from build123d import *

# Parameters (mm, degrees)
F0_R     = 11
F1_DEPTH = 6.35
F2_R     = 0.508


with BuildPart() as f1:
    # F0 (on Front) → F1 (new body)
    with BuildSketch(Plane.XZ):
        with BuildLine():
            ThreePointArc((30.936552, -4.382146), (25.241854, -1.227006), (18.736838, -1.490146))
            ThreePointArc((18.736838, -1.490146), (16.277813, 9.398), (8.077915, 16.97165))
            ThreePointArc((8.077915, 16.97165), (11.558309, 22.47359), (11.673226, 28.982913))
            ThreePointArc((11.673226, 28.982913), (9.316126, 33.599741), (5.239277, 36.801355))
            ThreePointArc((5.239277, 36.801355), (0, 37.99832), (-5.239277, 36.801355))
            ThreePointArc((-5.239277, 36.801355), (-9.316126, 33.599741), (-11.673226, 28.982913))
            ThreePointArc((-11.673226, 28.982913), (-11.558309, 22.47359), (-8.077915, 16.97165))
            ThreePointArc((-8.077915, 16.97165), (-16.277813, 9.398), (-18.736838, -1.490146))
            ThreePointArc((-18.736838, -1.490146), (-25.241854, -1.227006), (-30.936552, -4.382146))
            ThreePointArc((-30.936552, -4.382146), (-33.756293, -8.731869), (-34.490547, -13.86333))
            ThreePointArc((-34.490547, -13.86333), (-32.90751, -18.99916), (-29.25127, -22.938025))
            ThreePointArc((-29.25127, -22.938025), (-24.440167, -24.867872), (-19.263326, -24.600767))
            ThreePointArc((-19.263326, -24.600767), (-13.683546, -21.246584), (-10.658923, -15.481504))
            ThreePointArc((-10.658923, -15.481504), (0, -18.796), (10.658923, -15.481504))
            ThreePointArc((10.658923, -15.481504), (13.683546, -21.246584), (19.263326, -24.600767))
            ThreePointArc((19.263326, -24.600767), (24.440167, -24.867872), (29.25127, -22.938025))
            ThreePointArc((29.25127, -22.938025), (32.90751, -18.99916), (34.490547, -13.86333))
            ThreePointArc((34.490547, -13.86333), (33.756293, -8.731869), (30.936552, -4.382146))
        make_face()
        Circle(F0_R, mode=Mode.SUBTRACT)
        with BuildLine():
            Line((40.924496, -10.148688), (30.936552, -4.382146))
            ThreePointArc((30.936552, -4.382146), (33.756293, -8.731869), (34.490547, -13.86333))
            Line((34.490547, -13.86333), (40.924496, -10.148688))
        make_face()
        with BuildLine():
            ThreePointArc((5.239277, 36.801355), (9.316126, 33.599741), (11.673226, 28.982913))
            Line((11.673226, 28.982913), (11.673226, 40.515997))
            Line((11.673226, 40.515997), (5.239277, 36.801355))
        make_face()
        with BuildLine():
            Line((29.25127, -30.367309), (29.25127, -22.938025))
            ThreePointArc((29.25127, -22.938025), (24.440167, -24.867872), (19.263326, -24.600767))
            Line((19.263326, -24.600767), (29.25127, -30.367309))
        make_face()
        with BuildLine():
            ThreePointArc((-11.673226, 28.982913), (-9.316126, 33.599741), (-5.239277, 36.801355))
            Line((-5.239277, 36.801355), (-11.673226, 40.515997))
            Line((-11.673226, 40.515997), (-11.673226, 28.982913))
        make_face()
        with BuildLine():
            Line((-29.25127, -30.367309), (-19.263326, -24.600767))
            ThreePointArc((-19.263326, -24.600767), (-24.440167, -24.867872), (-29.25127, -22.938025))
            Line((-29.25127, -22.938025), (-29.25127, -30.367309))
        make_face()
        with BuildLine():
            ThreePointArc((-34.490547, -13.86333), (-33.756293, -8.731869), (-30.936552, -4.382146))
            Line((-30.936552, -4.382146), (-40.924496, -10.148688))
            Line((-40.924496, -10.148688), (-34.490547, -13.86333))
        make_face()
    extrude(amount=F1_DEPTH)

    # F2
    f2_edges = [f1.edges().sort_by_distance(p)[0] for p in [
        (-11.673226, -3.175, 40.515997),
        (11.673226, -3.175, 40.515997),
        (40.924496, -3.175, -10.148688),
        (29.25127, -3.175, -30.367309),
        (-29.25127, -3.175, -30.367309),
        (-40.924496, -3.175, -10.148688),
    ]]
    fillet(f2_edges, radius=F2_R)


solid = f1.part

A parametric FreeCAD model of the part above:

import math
import FreeCAD as App
import Part
import Sketcher
from FreeCAD import Vector
Q = App.Units.Quantity


def edges_at(feature, points):
    """Names of the edges that pass closest to the given points."""
    edges = feature.Shape.Edges
    near = lambda p: min(range(len(edges)), key=lambda i: edges[i].distToShape(Part.Vertex(*p))[0])
    return sorted({f"Edge{near(p) + 1}" for p in points})

doc = App.newDocument("Part")
body = doc.addObject("PartDesign::Body", "Body")

# Sketch on XZ plane
sketch1 = body.newObject("Sketcher::SketchObject", "Sketch")
sketch1.AttachmentSupport = (doc.getObject("XZ_Plane"), [""])
sketch1.MapMode = "FlatFace"
sketch1.addGeometry([
    Part.ArcOfCircle(Part.Circle(Vector(22, -13, 0), Vector(0, 0, 1), 12), math.radians(45), math.radians(108)),  # 0
    Part.ArcOfCircle(Part.Circle(Vector(0, 0, 0), Vector(0, 0, 1), 19), math.radians(-5), math.radians(65)),  # 1
    Part.ArcOfCircle(Part.Circle(Vector(0, 26, 0), Vector(0, 0, 1), 12), math.radians(-48), math.radians(15)),  # 2
    Part.LineSegment(Vector(12, 29, 0), Vector(12, 41, 0)),  # 3
    Part.LineSegment(Vector(12, 41, 0), Vector(5, 37, 0)),  # 4
    Part.ArcOfCircle(Part.Circle(Vector(0, 26, 0), Vector(0, 0, 1), 12), math.radians(64), math.radians(116)),  # 5
    Part.LineSegment(Vector(-5, 37, 0), Vector(-12, 41, 0)),  # 6
    Part.LineSegment(Vector(-12, 41, 0), Vector(-12, 29, 0)),  # 7
    Part.ArcOfCircle(Part.Circle(Vector(0, 26, 0), Vector(0, 0, 1), 12), math.radians(165), math.radians(228)),  # 8
    Part.ArcOfCircle(Part.Circle(Vector(0, 0, 0), Vector(0, 0, 1), 19), math.radians(115), math.radians(185)),  # 9
    Part.ArcOfCircle(Part.Circle(Vector(-22, -13, 0), Vector(0, 0, 1), 12), math.radians(72), math.radians(135)),  # 10
    Part.LineSegment(Vector(-31, -4, 0), Vector(-41, -10, 0)),  # 11
    Part.LineSegment(Vector(-41, -10, 0), Vector(-34, -14, 0)),  # 12
    Part.ArcOfCircle(Part.Circle(Vector(-22, -13, 0), Vector(0, 0, 1), 12), math.radians(-176), math.radians(-124)),  # 13
    Part.LineSegment(Vector(-29, -23, 0), Vector(-29, -30, 0)),  # 14
    Part.LineSegment(Vector(-29, -30, 0), Vector(-19, -25, 0)),  # 15
    Part.ArcOfCircle(Part.Circle(Vector(-22, -13, 0), Vector(0, 0, 1), 12), math.radians(-75), math.radians(-12)),  # 16
    Part.ArcOfCircle(Part.Circle(Vector(0, 0, 0), Vector(0, 0, 1), 19), math.radians(-125), math.radians(-55)),  # 17
    Part.ArcOfCircle(Part.Circle(Vector(22, -13, 0), Vector(0, 0, 1), 12), math.radians(-168), math.radians(-105)),  # 18
    Part.LineSegment(Vector(19, -25, 0), Vector(29, -30, 0)),  # 19
    Part.LineSegment(Vector(29, -30, 0), Vector(29, -23, 0)),  # 20
    Part.ArcOfCircle(Part.Circle(Vector(22, -13, 0), Vector(0, 0, 1), 12), math.radians(-56), math.radians(-4)),  # 21
    Part.LineSegment(Vector(34, -14, 0), Vector(41, -10, 0)),  # 22
    Part.LineSegment(Vector(41, -10, 0), Vector(31, -4, 0)),  # 23
    Part.Circle(Vector(0, 0, 0), Vector(0, 0, 1), 11),  # 24
], False)
sketch1.addConstraint([
    Sketcher.Constraint("Coincident", 0, 2, 1, 1),
    Sketcher.Constraint("Coincident", 1, 2, 2, 1),
    Sketcher.Constraint("Coincident", 2, 2, 3, 1),
    Sketcher.Constraint("Coincident", 3, 2, 4, 1),
    Sketcher.Constraint("Coincident", 4, 2, 5, 1),
    Sketcher.Constraint("Coincident", 5, 2, 6, 1),
    Sketcher.Constraint("Coincident", 6, 2, 7, 1),
    Sketcher.Constraint("Coincident", 7, 2, 8, 1),
    Sketcher.Constraint("Coincident", 8, 2, 9, 1),
    Sketcher.Constraint("Coincident", 9, 2, 10, 1),
    Sketcher.Constraint("Coincident", 10, 2, 11, 1),
    Sketcher.Constraint("Coincident", 11, 2, 12, 1),
    Sketcher.Constraint("Coincident", 12, 2, 13, 1),
    Sketcher.Constraint("Coincident", 13, 2, 14, 1),
    Sketcher.Constraint("Coincident", 14, 2, 15, 1),
    Sketcher.Constraint("Coincident", 15, 2, 16, 1),
    Sketcher.Constraint("Coincident", 16, 2, 17, 1),
    Sketcher.Constraint("Coincident", 17, 2, 18, 1),
    Sketcher.Constraint("Coincident", 18, 2, 19, 1),
    Sketcher.Constraint("Coincident", 19, 2, 20, 1),
    Sketcher.Constraint("Coincident", 20, 2, 21, 1),
    Sketcher.Constraint("Coincident", 21, 2, 22, 1),
    Sketcher.Constraint("Coincident", 22, 2, 23, 1),
    Sketcher.Constraint("Coincident", 23, 2, 0, 1),
    Sketcher.Constraint("Vertical", 3),
    Sketcher.Constraint("Vertical", 7),
    Sketcher.Constraint("Vertical", 14),
    Sketcher.Constraint("Vertical", 20),
    Sketcher.Constraint("Coincident", 1, 3, -1, 1),
    Sketcher.Constraint("Coincident", 9, 3, -1, 1),
    Sketcher.Constraint("Coincident", 17, 3, -1, 1),
    Sketcher.Constraint("Coincident", 24, 3, -1, 1),
    Sketcher.Constraint("Coincident", 5, 3, 2, 3),
    Sketcher.Constraint("Coincident", 8, 3, 2, 3),
    Sketcher.Constraint("Coincident", 13, 3, 10, 3),
    Sketcher.Constraint("Coincident", 16, 3, 10, 3),
    Sketcher.Constraint("Coincident", 18, 3, 0, 3),
    Sketcher.Constraint("Coincident", 21, 3, 0, 3),
    Sketcher.Constraint("Equal", 0, 2),
    Sketcher.Constraint("Equal", 2, 8),
    Sketcher.Constraint("Equal", 1, 9),
    Sketcher.Constraint("Equal", 8, 10),
    Sketcher.Constraint("Equal", 10, 13),
    Sketcher.Constraint("Equal", 13, 16),
    Sketcher.Constraint("Equal", 16, 18),
    Sketcher.Constraint("Equal", 18, 21),
    Sketcher.Constraint("Symmetric", 0, 3, 10, 3, -2),
    Sketcher.Constraint("Symmetric", 4, 2, 5, 2, -2),
    Sketcher.Constraint("Symmetric", 3, 2, 6, 2, -2),
    Sketcher.Constraint("Symmetric", 14, 2, 19, 2, -2),
    Sketcher.Constraint("Symmetric", 11, 2, 22, 2, -2),
    Sketcher.Constraint("Parallel", 4, 11),
    Sketcher.Constraint("Parallel", 6, 12),
    Sketcher.Constraint("Parallel", 11, 15),
    Sketcher.Constraint("Parallel", 12, 19),
    Sketcher.Constraint("Parallel", 15, 22),
    Sketcher.Constraint("Parallel", 19, 23),
    Sketcher.Constraint("Equal", 6, 12),
    Sketcher.Constraint("Equal", 11, 15),
    Sketcher.Constraint("Radius", 1, Q("0.7400001 in")),
    Sketcher.Constraint("Radius", 17, Q("0.7399999 in")),
    Sketcher.Constraint("Angle", 4, Q("-150.000001 deg")),
    Sketcher.Constraint("Radius", 0, Q("0.4749999 in")),
    Sketcher.Constraint("Diameter", 24, Q("22 mm")),
    Sketcher.Constraint("Radius", 5, Q("12.064993 mm")),
    Sketcher.Constraint("DistanceY", 10, 2, 9, 2, Q("2.892 mm")),
    Sketcher.Constraint("DistanceY", 17, 2, 9, 3, Q("15.481502 mm")),
    Sketcher.Constraint("DistanceY", 3, 1, 3, 2, Q("11.533084 mm")),
    Sketcher.Constraint("DistanceY", 14, 2, 14, 1, Q("7.429284 mm")),
    Sketcher.Constraint("DistanceY", 0, 3, -1, 1, Q("12.966658 mm")),
    Sketcher.Constraint("DistanceY", -1, 1, 2, 3, Q("25.933319 mm")),
    Sketcher.Constraint("DistanceY", 12, 2, -1, 1, Q("13.86333 mm")),
])
pad1 = body.newObject("PartDesign::Pad", "Pad")
pad1.Profile = sketch1
pad1.Length = Q("0.25 in")
doc.recompute()

fillet = body.newObject("PartDesign::Fillet", "Fillet")
fillet.Base = (pad1, edges_at(pad1, [
    (-11.673, -3.175, 40.516),
    (11.673, -3.175, 40.516),
    (40.924, -3.175, -10.149),
    (29.251, -3.175, -30.367),
    (-29.251, -3.175, -30.367),
    (-40.924, -3.175, -10.149),
]))
fillet.Radius = Q("0.02 in")

doc.recompute()
